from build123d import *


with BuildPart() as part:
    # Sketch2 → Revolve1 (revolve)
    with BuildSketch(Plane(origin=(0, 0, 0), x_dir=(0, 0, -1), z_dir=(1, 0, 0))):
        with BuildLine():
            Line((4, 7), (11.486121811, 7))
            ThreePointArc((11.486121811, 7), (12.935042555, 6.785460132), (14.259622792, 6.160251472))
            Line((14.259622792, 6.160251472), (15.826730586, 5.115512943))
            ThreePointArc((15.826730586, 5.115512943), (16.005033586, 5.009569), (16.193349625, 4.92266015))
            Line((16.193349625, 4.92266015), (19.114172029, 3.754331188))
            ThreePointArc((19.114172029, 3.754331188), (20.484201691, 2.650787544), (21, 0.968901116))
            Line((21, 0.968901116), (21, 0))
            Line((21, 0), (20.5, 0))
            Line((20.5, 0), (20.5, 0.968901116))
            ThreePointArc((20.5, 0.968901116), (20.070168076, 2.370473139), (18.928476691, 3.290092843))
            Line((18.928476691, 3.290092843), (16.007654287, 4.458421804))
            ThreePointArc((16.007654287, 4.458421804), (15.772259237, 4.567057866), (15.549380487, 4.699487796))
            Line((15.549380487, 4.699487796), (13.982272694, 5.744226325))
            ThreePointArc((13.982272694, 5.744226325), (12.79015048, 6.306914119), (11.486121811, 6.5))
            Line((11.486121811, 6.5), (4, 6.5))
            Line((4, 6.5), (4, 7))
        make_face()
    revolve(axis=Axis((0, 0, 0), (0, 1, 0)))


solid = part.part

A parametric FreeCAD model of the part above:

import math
import FreeCAD as App
import Part
import Sketcher

doc = App.newDocument("Part")
body = doc.addObject("PartDesign::Body", "Body")

sketch1 = body.newObject("Sketcher::SketchObject", "Sketch")
sketch1.AttachmentSupport = (doc.getObject("YZ_Plane"), [""])
sketch1.MapMode = "FlatFace"
sketch1.addGeometry(Part.LineSegment(App.Vector(7, -11.49, 0), App.Vector(7, -4, 0)), False)
sketch1.addGeometry(Part.LineSegment(App.Vector(7, -4, 0), App.Vector(6.5, -4, 0)), False)
sketch1.addGeometry(Part.LineSegment(App.Vector(6.5, -4, 0), App.Vector(6.5, -11.49, 0)), False)
sketch1.addGeometry(Part.ArcOfCircle(Part.Circle(App.Vector(2, -11.49, 0), App.Vector(0, 0, 1), 4.5), math.radians(-34), math.radians(0)), False)
sketch1.addGeometry(Part.LineSegment(App.Vector(5.74, -13.98, 0), App.Vector(4.7, -15.55, 0)), False)
sketch1.addGeometry(Part.ArcOfCircle(Part.Circle(App.Vector(6.78, -16.94, 0), App.Vector(0, 0, 1), 2.5), math.radians(146.31), math.radians(158.2)), False)
sketch1.addGeometry(Part.LineSegment(App.Vector(4.46, -16.01, 0), App.Vector(3.29, -18.93, 0)), False)
sketch1.addGeometry(Part.ArcOfCircle(Part.Circle(App.Vector(0.97, -18, 0), App.Vector(0, 0, 1), 2.5), math.radians(-90), math.radians(-22)), False)
sketch1.addGeometry(Part.LineSegment(App.Vector(0.97, -20.5, 0), App.Vector(0, -20.5, 0)), False)
sketch1.addGeometry(Part.LineSegment(App.Vector(0, -20.5, 0), App.Vector(0, -21, 0)), False)
sketch1.addGeometry(Part.LineSegment(App.Vector(0, -21, 0), App.Vector(0.97, -21, 0)), False)
sketch1.addGeometry(Part.ArcOfCircle(Part.Circle(App.Vector(0.97, -18, 0), App.Vector(0, 0, 1), 3), math.radians(-90), math.radians(-22)), False)
sketch1.addGeometry(Part.LineSegment(App.Vector(3.75, -19.11, 0), App.Vector(4.92, -16.19, 0)), False)
sketch1.addGeometry(Part.ArcOfCircle(Part.Circle(App.Vector(6.78, -16.94, 0), App.Vector(0, 0, 1), 2), math.radians(146.31), math.radians(158.2)), False)
sketch1.addGeometry(Part.LineSegment(App.Vector(5.12, -15.83, 0), App.Vector(6.16, -14.26, 0)), False)
sketch1.addGeometry(Part.ArcOfCircle(Part.Circle(App.Vector(2, -11.49, 0), App.Vector(0, 0, 1), 5), math.radians(-34), math.radians(0)), False)
sketch1.addConstraint(Sketcher.Constraint("Coincident", 0, 2, 1, 1))
sketch1.addConstraint(Sketcher.Constraint("Coincident", 1, 2, 2, 1))
sketch1.addConstraint(Sketcher.Constraint("Tangent", 2, 2, 3, 2))
sketch1.addConstraint(Sketcher.Constraint("Tangent", 3, 1, 4, 1))
sketch1.addConstraint(Sketcher.Constraint("Tangent", 4, 2, 5, 1))
sketch1.addConstraint(Sketcher.Constraint("Tangent", 5, 2, 6, 1))
sketch1.addConstraint(Sketcher.Constraint("Tangent", 6, 2, 7, 2))
sketch1.addConstraint(Sketcher.Constraint("Tangent", 7, 1, 8, 1))
sketch1.addConstraint(Sketcher.Constraint("Coincident", 8, 2, 9, 1))
sketch1.addConstraint(Sketcher.Constraint("Coincident", 9, 2, 10, 1))
sketch1.addConstraint(Sketcher.Constraint("Tangent", 10, 2, 11, 1))
sketch1.addConstraint(Sketcher.Constraint("Tangent", 11, 2, 12, 1))
sketch1.addConstraint(Sketcher.Constraint("Tangent", 12, 2, 13, 2))
sketch1.addConstraint(Sketcher.Constraint("Tangent", 13, 1, 14, 1))
sketch1.addConstraint(Sketcher.Constraint("Tangent", 14, 2, 15, 1))
sketch1.addConstraint(Sketcher.Constraint("Tangent", 15, 2, 0, 1))
sketch1.addConstraint(Sketcher.Constraint("Vertical", 0))
sketch1.addConstraint(Sketcher.Constraint("Horizontal", 1))
sketch1.addConstraint(Sketcher.Constraint("Vertical", 2))
sketch1.addConstraint(Sketcher.Constraint("Horizontal", 8))
sketch1.addConstraint(Sketcher.Constraint("Vertical", 9))
sketch1.addConstraint(Sketcher.Constraint("Horizontal", 10))
sketch1.addConstraint(Sketcher.Constraint("Coincident", 11, 3, 7, 3))
sketch1.addConstraint(Sketcher.Constraint("Coincident", 13, 3, 5, 3))
sketch1.addConstraint(Sketcher.Constraint("Coincident", 15, 3, 3, 3))
sketch1.addConstraint(Sketcher.Constraint("Equal", 5, 7))
sketch1.addConstraint(Sketcher.Constraint("PointOnObject", 8, 2, -2))
sketch1.addConstraint(Sketcher.Constraint("Parallel", 6, 12))
sketch1.addConstraint(Sketcher.Constraint("Parallel", 4, 14))
sketch1.addConstraint(Sketcher.Constraint("Radius", 11, 3.0))
sketch1.addConstraint(Sketcher.Constraint("Radius", 13, 2.0))
sketch1.addConstraint(Sketcher.Constraint("Radius", 15, 5.0))
sketch1.addConstraint(Sketcher.Constraint("DistanceX", -1, 1, 3, 3, 2.0))
sketch1.addConstraint(Sketcher.Constraint("DistanceY", 7, 3, -1, 1, 18.0))
sketch1.addConstraint(Sketcher.Constraint("DistanceY", 0, 2, -1, 1, 4.0))
sketch1.addConstraint(Sketcher.Constraint("DistanceX", 8, 2, 8, 1, 0.968901))
sketch1.addConstraint(Sketcher.Constraint("DistanceY", 0, 1, 0, 2, 7.486122))
sketch1.addConstraint(Sketcher.Constraint("DistanceX", 13, 1, 5, 3, 1.664101))
sketch1.addConstraint(Sketcher.Constraint("Distance", 4, 1.883429))
revolution = body.newObject("PartDesign::Revolution", "Revolution")
revolution.Profile = sketch1
revolution.ReferenceAxis = (sketch1, ["H_Axis"])
revolution.Angle = 360

doc.recompute()
